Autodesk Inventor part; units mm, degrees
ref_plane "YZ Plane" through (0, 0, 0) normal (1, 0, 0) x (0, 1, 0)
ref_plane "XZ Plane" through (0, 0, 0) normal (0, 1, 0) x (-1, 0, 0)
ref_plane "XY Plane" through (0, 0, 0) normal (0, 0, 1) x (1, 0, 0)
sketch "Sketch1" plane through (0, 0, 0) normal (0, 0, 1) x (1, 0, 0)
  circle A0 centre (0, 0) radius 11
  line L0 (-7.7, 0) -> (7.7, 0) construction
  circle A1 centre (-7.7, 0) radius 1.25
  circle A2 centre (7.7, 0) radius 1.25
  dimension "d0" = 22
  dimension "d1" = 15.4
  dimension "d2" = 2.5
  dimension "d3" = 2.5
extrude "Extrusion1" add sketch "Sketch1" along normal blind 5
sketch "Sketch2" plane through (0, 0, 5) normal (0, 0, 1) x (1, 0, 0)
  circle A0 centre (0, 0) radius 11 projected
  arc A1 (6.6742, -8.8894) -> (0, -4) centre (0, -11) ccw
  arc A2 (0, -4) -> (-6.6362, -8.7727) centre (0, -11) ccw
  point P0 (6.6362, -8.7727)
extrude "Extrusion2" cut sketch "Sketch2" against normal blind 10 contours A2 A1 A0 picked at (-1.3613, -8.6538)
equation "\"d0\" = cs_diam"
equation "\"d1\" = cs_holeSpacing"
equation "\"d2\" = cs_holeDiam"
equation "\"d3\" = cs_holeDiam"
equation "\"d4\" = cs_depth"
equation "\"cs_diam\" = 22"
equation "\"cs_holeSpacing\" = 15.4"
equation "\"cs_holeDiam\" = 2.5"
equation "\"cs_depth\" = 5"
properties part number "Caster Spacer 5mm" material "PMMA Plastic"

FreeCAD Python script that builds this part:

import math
import FreeCAD as App
import Part
import Sketcher

doc = App.newDocument("Part")
body = doc.addObject("PartDesign::Body", "Body")

sketch1 = body.newObject("Sketcher::SketchObject", "Sketch")
sketch1.AttachmentSupport = (doc.getObject("XY_Plane"), [""])
sketch1.MapMode = "FlatFace"
sketch1.addGeometry(Part.Circle(App.Vector(0, 0, 0), App.Vector(0, 0, 1), 11), False)
sketch1.addGeometry(Part.Circle(App.Vector(-7.7, 0, 0), App.Vector(0, 0, 1), 1.25), False)
sketch1.addGeometry(Part.Circle(App.Vector(7.7, 0, 0), App.Vector(0, 0, 1), 1.25), False)
sketch1.addConstraint(Sketcher.Constraint("Coincident", 0, 3, -1, 1))
sketch1.addConstraint(Sketcher.Constraint("Equal", 1, 2))
sketch1.addConstraint(Sketcher.Constraint("Symmetric", 1, 3, 2, 3, -1, 1))
sketch1.addConstraint(Sketcher.Constraint("PointOnObject", 1, 3, -1))
sketch1.addConstraint(Sketcher.Constraint("Diameter", 0, 22.0))
sketch1.addConstraint(Sketcher.Constraint("Diameter", 1, 2.5))
sketch1.addConstraint(Sketcher.Constraint("DistanceX", 1, 3, 2, 3, 15.4))
pad1 = body.newObject("PartDesign::Pad", "Pad")
pad1.Profile = sketch1
pad1.Length = 5

sketch2 = body.newObject("Sketcher::SketchObject", "Sketch001")
sketch2.AttachmentSupport = (doc.getObject("XY_Plane"), [""])
sketch2.MapMode = "FlatFace"
sketch2.AttachmentOffset = App.Placement(App.Vector(0, 0, 5), App.Rotation())
sketch2.addGeometry(Part.ArcOfCircle(Part.Circle(App.Vector(0, -11, 0), App.Vector(0, 0, 1), 7), math.radians(90), math.radians(161.446763)), False)
sketch2.addGeometry(Part.ArcOfCircle(Part.Circle(App.Vector(0, 0, 0), App.Vector(0, 0, 1), 11), math.radians(-127.106062), math.radians(-52.894159)), False)
sketch2.addGeometry(Part.ArcOfCircle(Part.Circle(App.Vector(0, -11, 0), App.Vector(0, 0, 1), 7), math.radians(18.552921), math.radians(90)), False)
sketch2.addConstraint(Sketcher.Constraint("Coincident", 0, 2, 1, 1))
sketch2.addConstraint(Sketcher.Constraint("Coincident", 1, 2, 2, 1))
sketch2.addConstraint(Sketcher.Constraint("Tangent", 2, 2, 0, 1))
sketch2.addConstraint(Sketcher.Constraint("Coincident", 1, 3, -1, 1))
sketch2.addConstraint(Sketcher.Constraint("Equal", 0, 2))
sketch2.addConstraint(Sketcher.Constraint("PointOnObject", 0, 3, -2))
sketch2.addConstraint(Sketcher.Constraint("PointOnObject", 2, 2, -2))
sketch2.addConstraint(Sketcher.Constraint("Radius", 0, 7.0))
sketch2.addConstraint(Sketcher.Constraint("Radius", 1, 11.0))
sketch2.addConstraint(Sketcher.Constraint("DistanceY", 0, 3, -1, 1, 11.0))
pocket1 = body.newObject("PartDesign::Pocket", "Pocket")
pocket1.Profile = sketch2
pocket1.Length = 10

doc.recompute()
